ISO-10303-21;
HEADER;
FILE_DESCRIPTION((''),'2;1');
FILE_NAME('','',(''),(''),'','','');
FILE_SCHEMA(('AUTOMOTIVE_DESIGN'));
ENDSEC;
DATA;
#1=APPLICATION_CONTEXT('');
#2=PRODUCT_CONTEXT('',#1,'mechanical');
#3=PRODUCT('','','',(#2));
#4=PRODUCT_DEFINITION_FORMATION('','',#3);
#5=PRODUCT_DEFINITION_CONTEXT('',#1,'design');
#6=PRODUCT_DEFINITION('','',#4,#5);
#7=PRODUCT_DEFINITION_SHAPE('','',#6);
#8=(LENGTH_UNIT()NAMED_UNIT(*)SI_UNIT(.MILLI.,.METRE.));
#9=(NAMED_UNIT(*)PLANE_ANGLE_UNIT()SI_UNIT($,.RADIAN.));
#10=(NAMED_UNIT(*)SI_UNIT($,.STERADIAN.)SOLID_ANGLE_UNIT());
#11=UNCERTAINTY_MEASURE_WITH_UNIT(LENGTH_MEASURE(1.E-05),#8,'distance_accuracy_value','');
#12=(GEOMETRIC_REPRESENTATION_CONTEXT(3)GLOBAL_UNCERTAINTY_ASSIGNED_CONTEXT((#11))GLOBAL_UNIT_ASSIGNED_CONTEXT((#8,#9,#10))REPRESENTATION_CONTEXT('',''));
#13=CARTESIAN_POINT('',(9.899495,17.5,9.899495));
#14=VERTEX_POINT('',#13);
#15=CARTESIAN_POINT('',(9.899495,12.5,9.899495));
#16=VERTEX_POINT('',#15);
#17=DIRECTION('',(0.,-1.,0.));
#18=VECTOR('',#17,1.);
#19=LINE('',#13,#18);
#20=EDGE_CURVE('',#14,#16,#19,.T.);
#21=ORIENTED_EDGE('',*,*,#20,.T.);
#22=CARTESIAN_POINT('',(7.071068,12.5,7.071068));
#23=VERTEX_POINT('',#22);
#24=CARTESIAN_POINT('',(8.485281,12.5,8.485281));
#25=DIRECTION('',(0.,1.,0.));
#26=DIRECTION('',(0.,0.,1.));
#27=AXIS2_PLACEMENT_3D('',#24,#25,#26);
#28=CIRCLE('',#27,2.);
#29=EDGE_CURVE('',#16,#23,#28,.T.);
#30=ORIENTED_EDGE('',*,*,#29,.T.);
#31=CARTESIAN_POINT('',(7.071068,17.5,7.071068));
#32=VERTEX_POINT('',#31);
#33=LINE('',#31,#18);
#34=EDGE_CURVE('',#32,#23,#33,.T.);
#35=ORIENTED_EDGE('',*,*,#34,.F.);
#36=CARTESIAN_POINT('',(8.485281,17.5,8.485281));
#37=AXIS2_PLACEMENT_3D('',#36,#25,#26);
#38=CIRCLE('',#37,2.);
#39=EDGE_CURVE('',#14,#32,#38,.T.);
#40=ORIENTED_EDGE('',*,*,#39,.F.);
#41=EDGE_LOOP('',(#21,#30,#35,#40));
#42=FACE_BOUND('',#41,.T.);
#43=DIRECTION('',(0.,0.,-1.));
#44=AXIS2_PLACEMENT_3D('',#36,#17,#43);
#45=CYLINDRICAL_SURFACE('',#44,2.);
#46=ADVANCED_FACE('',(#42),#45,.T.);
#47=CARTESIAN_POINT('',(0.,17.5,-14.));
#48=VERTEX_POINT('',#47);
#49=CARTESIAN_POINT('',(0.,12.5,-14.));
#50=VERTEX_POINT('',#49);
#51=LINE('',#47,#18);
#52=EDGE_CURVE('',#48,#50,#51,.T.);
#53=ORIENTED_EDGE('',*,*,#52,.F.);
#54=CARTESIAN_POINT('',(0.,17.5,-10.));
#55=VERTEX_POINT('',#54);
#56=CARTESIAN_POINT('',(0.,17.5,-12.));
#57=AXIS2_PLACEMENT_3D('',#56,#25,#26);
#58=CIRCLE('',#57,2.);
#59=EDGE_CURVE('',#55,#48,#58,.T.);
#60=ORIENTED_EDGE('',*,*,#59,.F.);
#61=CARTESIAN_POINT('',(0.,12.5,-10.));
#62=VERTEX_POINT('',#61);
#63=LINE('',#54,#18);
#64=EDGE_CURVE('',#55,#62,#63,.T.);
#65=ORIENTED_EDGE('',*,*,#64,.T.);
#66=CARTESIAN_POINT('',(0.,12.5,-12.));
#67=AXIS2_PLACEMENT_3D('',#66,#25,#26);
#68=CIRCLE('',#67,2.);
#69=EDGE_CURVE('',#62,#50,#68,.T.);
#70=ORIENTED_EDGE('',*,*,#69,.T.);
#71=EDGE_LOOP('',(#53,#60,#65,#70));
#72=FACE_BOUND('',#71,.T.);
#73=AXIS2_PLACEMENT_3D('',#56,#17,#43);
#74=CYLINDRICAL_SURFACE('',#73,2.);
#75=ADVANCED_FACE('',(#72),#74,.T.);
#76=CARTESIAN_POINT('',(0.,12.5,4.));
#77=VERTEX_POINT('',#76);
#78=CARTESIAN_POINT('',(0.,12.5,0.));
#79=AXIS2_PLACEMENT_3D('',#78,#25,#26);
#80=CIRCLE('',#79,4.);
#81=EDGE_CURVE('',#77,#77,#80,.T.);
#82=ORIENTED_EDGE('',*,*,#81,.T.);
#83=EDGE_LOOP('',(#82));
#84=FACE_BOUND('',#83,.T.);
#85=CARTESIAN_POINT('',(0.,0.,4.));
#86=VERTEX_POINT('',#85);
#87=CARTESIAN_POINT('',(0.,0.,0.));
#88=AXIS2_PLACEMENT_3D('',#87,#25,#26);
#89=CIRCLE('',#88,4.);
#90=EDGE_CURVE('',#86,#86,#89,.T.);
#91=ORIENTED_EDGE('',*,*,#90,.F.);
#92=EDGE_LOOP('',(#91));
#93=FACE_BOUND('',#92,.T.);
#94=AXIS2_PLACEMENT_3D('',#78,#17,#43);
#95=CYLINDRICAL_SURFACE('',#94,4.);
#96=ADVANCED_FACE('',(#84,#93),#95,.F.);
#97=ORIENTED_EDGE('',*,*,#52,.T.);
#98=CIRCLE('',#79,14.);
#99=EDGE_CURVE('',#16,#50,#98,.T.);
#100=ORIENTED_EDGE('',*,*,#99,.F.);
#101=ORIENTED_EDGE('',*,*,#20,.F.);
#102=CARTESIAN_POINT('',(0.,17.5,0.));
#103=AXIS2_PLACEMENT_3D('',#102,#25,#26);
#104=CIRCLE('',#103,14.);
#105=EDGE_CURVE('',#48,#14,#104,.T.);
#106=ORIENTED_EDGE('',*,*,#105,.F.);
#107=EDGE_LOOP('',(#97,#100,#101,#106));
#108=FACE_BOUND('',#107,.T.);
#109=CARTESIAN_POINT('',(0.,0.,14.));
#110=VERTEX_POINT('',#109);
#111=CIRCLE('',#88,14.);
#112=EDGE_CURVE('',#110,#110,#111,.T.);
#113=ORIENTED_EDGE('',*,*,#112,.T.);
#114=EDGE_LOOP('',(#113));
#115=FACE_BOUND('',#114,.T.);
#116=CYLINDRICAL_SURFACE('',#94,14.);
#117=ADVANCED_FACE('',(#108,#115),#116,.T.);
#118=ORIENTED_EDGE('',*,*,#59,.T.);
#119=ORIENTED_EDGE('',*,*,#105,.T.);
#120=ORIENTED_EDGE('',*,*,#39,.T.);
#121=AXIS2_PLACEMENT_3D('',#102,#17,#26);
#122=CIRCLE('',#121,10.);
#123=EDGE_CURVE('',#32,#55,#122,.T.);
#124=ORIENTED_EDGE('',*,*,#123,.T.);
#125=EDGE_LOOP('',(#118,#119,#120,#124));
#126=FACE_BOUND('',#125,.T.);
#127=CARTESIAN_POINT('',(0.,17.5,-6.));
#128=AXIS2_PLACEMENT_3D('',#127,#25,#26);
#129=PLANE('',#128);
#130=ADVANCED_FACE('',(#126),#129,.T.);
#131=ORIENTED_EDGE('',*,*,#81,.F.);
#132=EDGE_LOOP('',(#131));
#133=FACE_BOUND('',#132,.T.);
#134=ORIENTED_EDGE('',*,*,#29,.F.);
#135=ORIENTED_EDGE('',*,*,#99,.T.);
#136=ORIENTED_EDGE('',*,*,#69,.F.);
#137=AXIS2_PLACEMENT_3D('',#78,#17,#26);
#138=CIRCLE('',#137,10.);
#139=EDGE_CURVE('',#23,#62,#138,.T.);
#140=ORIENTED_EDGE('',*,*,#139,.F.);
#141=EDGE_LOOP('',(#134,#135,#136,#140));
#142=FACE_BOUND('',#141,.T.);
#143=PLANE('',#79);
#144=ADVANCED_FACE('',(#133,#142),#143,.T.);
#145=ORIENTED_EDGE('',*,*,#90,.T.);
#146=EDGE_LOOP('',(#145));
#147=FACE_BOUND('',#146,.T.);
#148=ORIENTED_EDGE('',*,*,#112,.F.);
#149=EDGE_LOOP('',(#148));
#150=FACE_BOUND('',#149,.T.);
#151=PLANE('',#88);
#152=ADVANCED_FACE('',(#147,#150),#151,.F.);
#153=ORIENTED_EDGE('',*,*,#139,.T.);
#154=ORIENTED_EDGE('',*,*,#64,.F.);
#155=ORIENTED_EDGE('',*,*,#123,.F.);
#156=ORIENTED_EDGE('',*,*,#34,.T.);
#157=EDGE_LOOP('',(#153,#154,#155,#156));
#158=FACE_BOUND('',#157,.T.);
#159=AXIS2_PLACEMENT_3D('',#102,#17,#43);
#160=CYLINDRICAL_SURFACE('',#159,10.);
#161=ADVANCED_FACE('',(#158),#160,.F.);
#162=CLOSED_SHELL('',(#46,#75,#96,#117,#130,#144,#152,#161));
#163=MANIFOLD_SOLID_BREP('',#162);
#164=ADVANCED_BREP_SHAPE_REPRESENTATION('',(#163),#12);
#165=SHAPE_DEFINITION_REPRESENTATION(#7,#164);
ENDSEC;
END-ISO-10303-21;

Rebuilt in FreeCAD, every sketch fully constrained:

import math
import FreeCAD as App
import Part
import Sketcher
Q = App.Units.Quantity

doc = App.newDocument("Part")
body = doc.addObject("PartDesign::Body", "Body")

sketch1 = doc.addObject("Sketcher::SketchObject", "Sketch")
body.addObject(sketch1)
sketch1.AttachmentSupport = (doc.XZ_Plane, [""])
sketch1.MapMode = "FlatFace"
sketch1.addGeometry(Part.Circle(App.Vector(0, 0, 0), App.Vector(0, 0, 1), 14), False)
sketch1.addGeometry(Part.Circle(App.Vector(0, 0, 0), App.Vector(0, 0, 1), 4), False)
sketch1.addConstraint(Sketcher.Constraint("Coincident", 0, 3, -1, 1))
sketch1.addConstraint(Sketcher.Constraint("Coincident", 1, 3, -1, 1))
sketch1.addConstraint(Sketcher.Constraint("Diameter", 0, Q("28 mm")))
sketch1.addConstraint(Sketcher.Constraint("Diameter", 1, Q("8 mm")))
pad1 = doc.addObject("PartDesign::Pad", "Pad")
body.addObject(pad1)
pad1.Profile = sketch1
pad1.Length = 12.5
pad1.Reversed = True

sketch2 = doc.addObject("Sketcher::SketchObject", "Sketch001")
body.addObject(sketch2)
sketch2.AttachmentSupport = (doc.XZ_Plane, [""])
sketch2.MapMode = "FlatFace"
sketch2.AttachmentOffset = App.Placement(App.Vector(0, 0, -12.5), App.Rotation())
sketch2.addGeometry(Part.ArcOfCircle(Part.Circle(App.Vector(0, 0, 0), App.Vector(0, 0, 1), 14), math.radians(45), math.radians(270)), False)
sketch2.addGeometry(Part.ArcOfCircle(Part.Circle(App.Vector(8.5, 8.5, 0), App.Vector(0, 0, 1), 2), math.radians(-135), math.radians(45)), False)
sketch2.addGeometry(Part.ArcOfCircle(Part.Circle(App.Vector(0, 0, 0), App.Vector(0, 0, 1), 10), math.radians(45), math.radians(270)), False)
sketch2.addGeometry(Part.ArcOfCircle(Part.Circle(App.Vector(0, -12, 0), App.Vector(0, 0, 1), 2), math.radians(-90), math.radians(90)), False)
sketch2.addConstraint(Sketcher.Constraint("Tangent", 0, 1, 1, 2))
sketch2.addConstraint(Sketcher.Constraint("Tangent", 1, 1, 2, 1))
sketch2.addConstraint(Sketcher.Constraint("Tangent", 2, 2, 3, 2))
sketch2.addConstraint(Sketcher.Constraint("Tangent", 3, 1, 0, 2))
sketch2.addConstraint(Sketcher.Constraint("Coincident", 0, 3, -1, 1))
sketch2.addConstraint(Sketcher.Constraint("Coincident", 2, 3, -1, 1))
sketch2.addConstraint(Sketcher.Constraint("PointOnObject", 3, 3, -2))
sketch2.addConstraint(Sketcher.Constraint("Radius", 0, Q("14 mm")))
sketch2.addConstraint(Sketcher.Constraint("Radius", 1, Q("2 mm")))
sketch2.addConstraint(Sketcher.Constraint("DistanceX", -1, 1, 1, 3, Q("8.485281 mm")))
pad2 = doc.addObject("PartDesign::Pad", "Pad001")
body.addObject(pad2)
pad2.Profile = sketch2
pad2.Length = 5
pad2.Reversed = True

doc.recompute()
